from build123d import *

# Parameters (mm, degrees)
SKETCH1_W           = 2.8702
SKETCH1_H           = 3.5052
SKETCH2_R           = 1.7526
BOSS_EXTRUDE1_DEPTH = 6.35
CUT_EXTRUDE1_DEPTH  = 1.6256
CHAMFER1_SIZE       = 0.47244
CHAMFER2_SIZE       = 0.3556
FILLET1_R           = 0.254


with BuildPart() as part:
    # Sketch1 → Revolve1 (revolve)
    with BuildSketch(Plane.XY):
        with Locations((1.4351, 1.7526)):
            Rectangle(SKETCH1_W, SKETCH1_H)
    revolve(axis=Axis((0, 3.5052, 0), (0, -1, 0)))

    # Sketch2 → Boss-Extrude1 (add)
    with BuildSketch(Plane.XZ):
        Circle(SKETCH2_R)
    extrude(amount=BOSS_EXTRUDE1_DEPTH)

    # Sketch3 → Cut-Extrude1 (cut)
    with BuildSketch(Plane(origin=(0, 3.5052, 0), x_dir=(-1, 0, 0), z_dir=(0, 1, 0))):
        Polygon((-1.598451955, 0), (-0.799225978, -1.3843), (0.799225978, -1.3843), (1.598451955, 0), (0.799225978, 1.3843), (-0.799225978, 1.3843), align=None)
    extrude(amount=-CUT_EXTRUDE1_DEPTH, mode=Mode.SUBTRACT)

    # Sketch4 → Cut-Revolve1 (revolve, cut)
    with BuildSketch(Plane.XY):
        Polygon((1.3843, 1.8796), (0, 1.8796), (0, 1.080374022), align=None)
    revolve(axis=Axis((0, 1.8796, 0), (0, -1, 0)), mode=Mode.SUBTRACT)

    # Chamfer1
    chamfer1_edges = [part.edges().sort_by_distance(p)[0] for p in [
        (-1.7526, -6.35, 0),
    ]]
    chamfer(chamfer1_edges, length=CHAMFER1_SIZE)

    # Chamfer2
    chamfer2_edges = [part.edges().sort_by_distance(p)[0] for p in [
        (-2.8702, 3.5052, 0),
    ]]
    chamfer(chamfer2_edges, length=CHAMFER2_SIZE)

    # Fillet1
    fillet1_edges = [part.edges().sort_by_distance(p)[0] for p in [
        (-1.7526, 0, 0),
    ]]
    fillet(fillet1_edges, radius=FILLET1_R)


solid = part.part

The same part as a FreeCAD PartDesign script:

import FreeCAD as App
import Part
import Sketcher
Q = App.Units.Quantity


def edges_at(feature, points):
    """Names of the edges that pass closest to the given points."""
    edges = feature.Shape.Edges
    near = lambda p: min(range(len(edges)), key=lambda i: edges[i].distToShape(Part.Vertex(*p))[0])
    return sorted({f"Edge{near(p) + 1}" for p in points})

doc = App.newDocument("Part")
body = doc.addObject("PartDesign::Body", "Body")

# Sketch on XY plane
sketch1 = body.newObject("Sketcher::SketchObject", "Sketch")
sketch1.AttachmentSupport = (doc.getObject("XY_Plane"), [""])
sketch1.MapMode = "FlatFace"
sketch1.addGeometry(Part.LineSegment(App.Vector(0, 3.5, 0), App.Vector(0, 0, 0)), False)
sketch1.addGeometry(Part.LineSegment(App.Vector(0, 0, 0), App.Vector(2.9, 0, 0)), False)
sketch1.addGeometry(Part.LineSegment(App.Vector(2.9, 0, 0), App.Vector(2.9, 3.5, 0)), False)
sketch1.addGeometry(Part.LineSegment(App.Vector(2.9, 3.5, 0), App.Vector(0, 3.5, 0)), False)
sketch1.addConstraint(Sketcher.Constraint("Coincident", 0, 2, 1, 1))
sketch1.addConstraint(Sketcher.Constraint("Coincident", 1, 2, 2, 1))
sketch1.addConstraint(Sketcher.Constraint("Coincident", 2, 2, 3, 1))
sketch1.addConstraint(Sketcher.Constraint("Coincident", 3, 2, 0, 1))
sketch1.addConstraint(Sketcher.Constraint("Vertical", 0))
sketch1.addConstraint(Sketcher.Constraint("Horizontal", 1))
sketch1.addConstraint(Sketcher.Constraint("Vertical", 2))
sketch1.addConstraint(Sketcher.Constraint("Horizontal", 3))
sketch1.addConstraint(Sketcher.Constraint("Coincident", 0, 2, -1, 1))
sketch1.addConstraint(Sketcher.Constraint("DistanceX", 1, 1, 1, 2, Q("0.113 in")))
sketch1.addConstraint(Sketcher.Constraint("DistanceY", 0, 2, 0, 1, Q("0.138 in")))
revolution = body.newObject("PartDesign::Revolution", "Revolution")
revolution.Profile = sketch1
revolution.ReferenceAxis = (sketch1, ["V_Axis"])
revolution.Angle = 360

# Sketch on XZ plane
sketch2 = body.newObject("Sketcher::SketchObject", "Sketch001")
sketch2.AttachmentSupport = (doc.getObject("XZ_Plane"), [""])
sketch2.MapMode = "FlatFace"
sketch2.addGeometry(Part.Circle(App.Vector(0, 0, 0), App.Vector(0, 0, 1), 1.8), False)
sketch2.addConstraint(Sketcher.Constraint("Coincident", 0, 3, -1, 1))
sketch2.addConstraint(Sketcher.Constraint("Diameter", 0, Q("0.138 in")))
pad1 = body.newObject("PartDesign::Pad", "Pad")
pad1.Profile = sketch2
pad1.Length = Q("0.25 in")

# Sketch on XZ plane
sketch3 = body.newObject("Sketcher::SketchObject", "Sketch002")
sketch3.AttachmentSupport = (doc.getObject("XZ_Plane"), [""])
sketch3.MapMode = "FlatFace"
sketch3.AttachmentOffset = App.Placement(App.Vector(0, 0, -0.138 * 25.4), App.Rotation())
sketch3.addGeometry(Part.LineSegment(App.Vector(1.6, 0, 0), App.Vector(0.8, -1.4, 0)), False)
sketch3.addGeometry(Part.LineSegment(App.Vector(0.8, -1.4, 0), App.Vector(-0.8, -1.4, 0)), False)
sketch3.addGeometry(Part.LineSegment(App.Vector(-0.8, -1.4, 0), App.Vector(-1.6, 0, 0)), False)
sketch3.addGeometry(Part.LineSegment(App.Vector(-1.6, 0, 0), App.Vector(-0.8, 1.4, 0)), False)
sketch3.addGeometry(Part.LineSegment(App.Vector(-0.8, 1.4, 0), App.Vector(0.8, 1.4, 0)), False)
sketch3.addGeometry(Part.LineSegment(App.Vector(0.8, 1.4, 0), App.Vector(1.6, 0, 0)), False)
sketch3.addConstraint(Sketcher.Constraint("Coincident", 0, 2, 1, 1))
sketch3.addConstraint(Sketcher.Constraint("Coincident", 1, 2, 2, 1))
sketch3.addConstraint(Sketcher.Constraint("Coincident", 2, 2, 3, 1))
sketch3.addConstraint(Sketcher.Constraint("Coincident", 3, 2, 4, 1))
sketch3.addConstraint(Sketcher.Constraint("Coincident", 4, 2, 5, 1))
sketch3.addConstraint(Sketcher.Constraint("Coincident", 5, 2, 0, 1))
sketch3.addConstraint(Sketcher.Constraint("Horizontal", 1))
sketch3.addConstraint(Sketcher.Constraint("Horizontal", 4))
sketch3.addConstraint(Sketcher.Constraint("Symmetric", 0, 2, 3, 2, -1, 1))
sketch3.addConstraint(Sketcher.Constraint("Symmetric", 2, 2, 5, 2, -1, 1))
sketch3.addConstraint(Sketcher.Constraint("PointOnObject", 2, 2, -1))
sketch3.addConstraint(Sketcher.Constraint("Parallel", 2, 5))
sketch3.addConstraint(Sketcher.Constraint("Vertical", 1, 2, 3, 2))
sketch3.addConstraint(Sketcher.Constraint("Angle", 0, Q("-120 deg")))
sketch3.addConstraint(Sketcher.Constraint("DistanceY", 1, 2, 3, 2, Q("0.109 in")))
sketch3.addConstraint(Sketcher.Constraint("DistanceX", 1, 2, 1, 1, 1.598452))
pocket1 = body.newObject("PartDesign::Pocket", "Pocket")
pocket1.Profile = sketch3
pocket1.Length = Q("0.064 in")
pocket1.Reversed = True

# Sketch on XY plane
sketch4 = body.newObject("Sketcher::SketchObject", "Sketch003")
sketch4.AttachmentSupport = (doc.getObject("XY_Plane"), [""])
sketch4.MapMode = "FlatFace"
sketch4.addGeometry(Part.LineSegment(App.Vector(1.4, 1.9, 0), App.Vector(0, 1.9, 0)), False)
sketch4.addGeometry(Part.LineSegment(App.Vector(0, 1.9, 0), App.Vector(0, 1.1, 0)), False)
sketch4.addGeometry(Part.LineSegment(App.Vector(0, 1.1, 0), App.Vector(1.4, 1.9, 0)), False)
sketch4.addConstraint(Sketcher.Constraint("Coincident", 0, 2, 1, 1))
sketch4.addConstraint(Sketcher.Constraint("Coincident", 1, 2, 2, 1))
sketch4.addConstraint(Sketcher.Constraint("Coincident", 2, 2, 0, 1))
sketch4.addConstraint(Sketcher.Constraint("Horizontal", 0))
sketch4.addConstraint(Sketcher.Constraint("Vertical", 1))
sketch4.addConstraint(Sketcher.Constraint("PointOnObject", 0, 2, -2))
sketch4.addConstraint(Sketcher.Constraint("Angle", 2, Q("30 deg")))
sketch4.addConstraint(Sketcher.Constraint("DistanceX", 0, 2, 0, 1, Q("0.0545 in")))
sketch4.addConstraint(Sketcher.Constraint("DistanceY", -1, 1, 0, 2, Q("0.074 in")))
groove = body.newObject("PartDesign::Groove", "Groove")
groove.Profile = sketch4
groove.ReferenceAxis = (sketch4, ["V_Axis"])
groove.Angle = 360
doc.recompute()

chamfer = body.newObject("PartDesign::Chamfer", "Chamfer")
chamfer.Base = (groove, edges_at(groove, [(-1.753, -6.35, 0)]))
chamfer.Size = Q("0.0186 in")
doc.recompute()

chamfer2 = body.newObject("PartDesign::Chamfer", "Chamfer001")
chamfer2.Base = (chamfer, edges_at(chamfer, [(-2.87, 3.505, 0)]))
chamfer2.Size = Q("0.014 in")
doc.recompute()

fillet = body.newObject("PartDesign::Fillet", "Fillet")
fillet.Base = (chamfer2, edges_at(chamfer2, [(-1.753, 0, 0)]))
fillet.Radius = Q("0.01 in")

doc.recompute()
